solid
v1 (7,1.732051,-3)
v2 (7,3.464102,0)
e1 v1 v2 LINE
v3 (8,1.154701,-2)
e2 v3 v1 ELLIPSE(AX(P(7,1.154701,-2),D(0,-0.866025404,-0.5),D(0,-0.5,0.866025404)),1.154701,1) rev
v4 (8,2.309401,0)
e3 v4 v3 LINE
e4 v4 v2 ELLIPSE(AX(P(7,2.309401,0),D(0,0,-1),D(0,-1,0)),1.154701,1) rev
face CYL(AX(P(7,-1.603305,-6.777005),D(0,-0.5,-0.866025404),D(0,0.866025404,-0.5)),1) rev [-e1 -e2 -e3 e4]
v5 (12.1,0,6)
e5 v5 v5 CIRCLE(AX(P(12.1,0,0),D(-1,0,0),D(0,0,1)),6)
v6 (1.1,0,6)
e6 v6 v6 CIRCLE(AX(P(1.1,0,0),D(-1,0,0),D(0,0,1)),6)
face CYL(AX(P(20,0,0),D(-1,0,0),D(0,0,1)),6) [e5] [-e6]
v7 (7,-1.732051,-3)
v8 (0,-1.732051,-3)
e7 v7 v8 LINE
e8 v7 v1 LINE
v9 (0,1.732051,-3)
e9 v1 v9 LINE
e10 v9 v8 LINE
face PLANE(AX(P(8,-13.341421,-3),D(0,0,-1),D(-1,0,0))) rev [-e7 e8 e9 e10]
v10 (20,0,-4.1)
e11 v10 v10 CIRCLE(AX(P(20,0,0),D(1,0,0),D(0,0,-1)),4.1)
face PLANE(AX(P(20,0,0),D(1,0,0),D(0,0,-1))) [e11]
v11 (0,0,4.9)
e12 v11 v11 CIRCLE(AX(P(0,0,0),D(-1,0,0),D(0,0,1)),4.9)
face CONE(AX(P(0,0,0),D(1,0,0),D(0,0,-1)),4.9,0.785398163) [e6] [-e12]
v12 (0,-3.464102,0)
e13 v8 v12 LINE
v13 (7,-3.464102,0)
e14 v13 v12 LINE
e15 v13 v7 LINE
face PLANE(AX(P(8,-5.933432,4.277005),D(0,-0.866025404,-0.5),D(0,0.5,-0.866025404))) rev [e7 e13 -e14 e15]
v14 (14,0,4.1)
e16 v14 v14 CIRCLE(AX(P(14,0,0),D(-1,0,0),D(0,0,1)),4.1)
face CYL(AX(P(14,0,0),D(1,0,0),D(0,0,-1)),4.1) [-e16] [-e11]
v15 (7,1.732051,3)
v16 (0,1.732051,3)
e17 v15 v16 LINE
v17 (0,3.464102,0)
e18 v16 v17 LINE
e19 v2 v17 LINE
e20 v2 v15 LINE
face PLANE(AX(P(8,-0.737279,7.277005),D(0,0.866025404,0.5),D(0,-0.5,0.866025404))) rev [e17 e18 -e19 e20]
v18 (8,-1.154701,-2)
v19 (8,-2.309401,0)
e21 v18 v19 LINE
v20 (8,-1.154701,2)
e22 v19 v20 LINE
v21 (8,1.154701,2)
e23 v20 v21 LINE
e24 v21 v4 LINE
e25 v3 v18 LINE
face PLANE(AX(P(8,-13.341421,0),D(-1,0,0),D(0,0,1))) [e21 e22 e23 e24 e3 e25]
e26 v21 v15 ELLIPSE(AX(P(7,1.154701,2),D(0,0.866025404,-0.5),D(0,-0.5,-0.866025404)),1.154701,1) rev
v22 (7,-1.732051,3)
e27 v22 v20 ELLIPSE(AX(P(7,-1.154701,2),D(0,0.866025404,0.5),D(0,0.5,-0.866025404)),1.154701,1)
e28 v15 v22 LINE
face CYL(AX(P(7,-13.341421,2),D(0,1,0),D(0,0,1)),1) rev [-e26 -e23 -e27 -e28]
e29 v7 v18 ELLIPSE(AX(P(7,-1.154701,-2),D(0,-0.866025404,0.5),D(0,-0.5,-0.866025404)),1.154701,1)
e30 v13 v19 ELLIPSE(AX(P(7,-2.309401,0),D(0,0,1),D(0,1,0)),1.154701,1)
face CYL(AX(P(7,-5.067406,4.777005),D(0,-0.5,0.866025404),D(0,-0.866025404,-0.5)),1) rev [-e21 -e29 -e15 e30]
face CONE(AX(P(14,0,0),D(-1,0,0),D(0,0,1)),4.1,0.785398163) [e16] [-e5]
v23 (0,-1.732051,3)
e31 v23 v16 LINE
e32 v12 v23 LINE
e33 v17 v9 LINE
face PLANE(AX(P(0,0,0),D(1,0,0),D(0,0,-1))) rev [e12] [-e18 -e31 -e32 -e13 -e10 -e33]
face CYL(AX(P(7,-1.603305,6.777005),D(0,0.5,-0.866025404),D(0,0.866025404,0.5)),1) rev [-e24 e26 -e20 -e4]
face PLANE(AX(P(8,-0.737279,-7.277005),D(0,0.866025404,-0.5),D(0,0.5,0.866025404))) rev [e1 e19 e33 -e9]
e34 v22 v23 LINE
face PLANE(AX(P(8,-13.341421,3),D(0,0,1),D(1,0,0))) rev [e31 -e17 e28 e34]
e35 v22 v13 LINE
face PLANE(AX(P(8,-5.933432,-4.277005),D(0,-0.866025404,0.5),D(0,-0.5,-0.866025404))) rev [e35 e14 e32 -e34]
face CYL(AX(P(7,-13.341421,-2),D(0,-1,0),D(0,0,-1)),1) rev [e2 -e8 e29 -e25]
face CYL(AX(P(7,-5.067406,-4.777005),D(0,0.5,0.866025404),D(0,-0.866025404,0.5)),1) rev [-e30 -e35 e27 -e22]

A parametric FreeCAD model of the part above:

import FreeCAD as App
import Part
import Sketcher

V = App.Vector
Q = App.Units.Quantity


def edges_at(feature, points):
    """Names of the edges that pass closest to the given points."""
    edges = feature.Shape.Edges
    near = lambda p: min(range(len(edges)), key=lambda i: edges[i].distToShape(Part.Vertex(*p))[0])
    return sorted({f"Edge{near(p) + 1}" for p in points})

doc = App.newDocument("Part")
body = doc.addObject("PartDesign::Body", "Body")

# Sketch on YZ plane
sketch1 = body.newObject("Sketcher::SketchObject", "Sketch")
sketch1.AttachmentSupport = (doc.getObject("YZ_Plane"), [""])
sketch1.MapMode = "FlatFace"
sketch1.addGeometry(Part.Circle(V(0, 0, 0), V(0, 0, 1), 6), False)
sketch1.addConstraint([
    Sketcher.Constraint("Coincident", 0, 3, -1, 1),
    Sketcher.Constraint("Diameter", 0, 12.0),
])
pad1 = body.newObject("PartDesign::Pad", "Pad")
pad1.Profile = sketch1
pad1.Length = 20

# Sketch on YZ plane
sketch2 = body.newObject("Sketcher::SketchObject", "Sketch001")
sketch2.AttachmentSupport = (doc.getObject("YZ_Plane"), [""])
sketch2.MapMode = "FlatFace"
sketch2.addGeometry([
    Part.LineSegment(V(-1.7, -3, 0), V(-3.5, 0, 0)),  # 0
    Part.LineSegment(V(-3.5, 0, 0), V(-1.7, 3, 0)),  # 1
    Part.LineSegment(V(-1.7, 3, 0), V(1.7, 3, 0)),  # 2
    Part.LineSegment(V(1.7, 3, 0), V(3.5, 0, 0)),  # 3
    Part.LineSegment(V(3.5, 0, 0), V(1.7, -3, 0)),  # 4
    Part.LineSegment(V(1.7, -3, 0), V(-1.7, -3, 0)),  # 5
], False)
sketch2.addConstraint([
    Sketcher.Constraint("Coincident", 0, 2, 1, 1),
    Sketcher.Constraint("Coincident", 1, 2, 2, 1),
    Sketcher.Constraint("Coincident", 2, 2, 3, 1),
    Sketcher.Constraint("Coincident", 3, 2, 4, 1),
    Sketcher.Constraint("Coincident", 4, 2, 5, 1),
    Sketcher.Constraint("Coincident", 5, 2, 0, 1),
    Sketcher.Constraint("Horizontal", 2),
    Sketcher.Constraint("Horizontal", 5),
    Sketcher.Constraint("Symmetric", 0, 2, 3, 2, -1, 1),
    Sketcher.Constraint("Symmetric", 1, 2, 4, 2, -1, 1),
    Sketcher.Constraint("PointOnObject", 0, 2, -1),
    Sketcher.Constraint("Parallel", 0, 3),
    Sketcher.Constraint("Vertical", 2, 2, 4, 2),
    Sketcher.Constraint("Angle", 0, Q("120 deg")),
    Sketcher.Constraint("DistanceY", -1, 1, 1, 2, 3.0),
    Sketcher.Constraint("DistanceX", 2, 1, 2, 2, 3.464102),
])
pocket1 = body.newObject("PartDesign::Pocket", "Pocket")
pocket1.Profile = sketch2
pocket1.Length = 8
pocket1.Reversed = True

# Sketch on YZ plane
sketch3 = body.newObject("Sketcher::SketchObject", "Sketch002")
sketch3.AttachmentSupport = (doc.getObject("YZ_Plane"), [""])
sketch3.MapMode = "FlatFace"
sketch3.AttachmentOffset = App.Placement(V(0, 0, 14), App.Rotation())
sketch3.addGeometry([
    Part.Circle(V(0, 0, 0), V(0, 0, 1), 6),
    Part.Circle(V(0, 0, 0), V(0, 0, 1), 4.1),
], False)
sketch3.addConstraint([
    Sketcher.Constraint("Coincident", 0, 3, -1, 1),
    Sketcher.Constraint("Coincident", 1, 3, -1, 1),
    Sketcher.Constraint("Diameter", 0, 12.0),
    Sketcher.Constraint("Diameter", 1, 8.2),
])
pocket2 = body.newObject("PartDesign::Pocket", "Pocket001")
pocket2.Profile = sketch3
pocket2.Length = 6
pocket2.Reversed = True

# Sketch on XY plane
sketch4 = body.newObject("Sketcher::SketchObject", "Sketch003")
sketch4.AttachmentSupport = (doc.getObject("XY_Plane"), [""])
sketch4.MapMode = "FlatFace"
sketch4.addGeometry([
    Part.LineSegment(V(14, 4.1, 0), V(14, 6, 0)),
    Part.LineSegment(V(14, 6, 0), V(12.1, 6, 0)),
    Part.LineSegment(V(12.1, 6, 0), V(14, 4.1, 0)),
], False)
sketch4.addConstraint([
    Sketcher.Constraint("Coincident", 0, 2, 1, 1),
    Sketcher.Constraint("Coincident", 1, 2, 2, 1),
    Sketcher.Constraint("Coincident", 2, 2, 0, 1),
    Sketcher.Constraint("Vertical", 0),
    Sketcher.Constraint("Horizontal", 1),
    Sketcher.Constraint("Equal", 1, 0),
    Sketcher.Constraint("DistanceX", 1, 2, 1, 1, 1.9),
    Sketcher.Constraint("DistanceX", -1, 1, 0, 2, 14.0),
    Sketcher.Constraint("DistanceY", -1, 1, 0, 2, 6.0),
])
groove = body.newObject("PartDesign::Groove", "Groove")
groove.Profile = sketch4
groove.ReferenceAxis = (sketch4, ["H_Axis"])
groove.Angle = 360

# Sketch on XY plane
sketch5 = body.newObject("Sketcher::SketchObject", "Sketch004")
sketch5.AttachmentSupport = (doc.getObject("XY_Plane"), [""])
sketch5.MapMode = "FlatFace"
sketch5.addGeometry([
    Part.LineSegment(V(0, 6, 0), V(0, 4.9, 0)),
    Part.LineSegment(V(0, 4.9, 0), V(1.1, 6, 0)),
    Part.LineSegment(V(1.1, 6, 0), V(0, 6, 0)),
], False)
sketch5.addConstraint([
    Sketcher.Constraint("Coincident", 0, 2, 1, 1),
    Sketcher.Constraint("Coincident", 1, 2, 2, 1),
    Sketcher.Constraint("Coincident", 2, 2, 0, 1),
    Sketcher.Constraint("Vertical", 0),
    Sketcher.Constraint("Horizontal", 2),
    Sketcher.Constraint("PointOnObject", 0, 2, -2),
    Sketcher.Constraint("Equal", 2, 0),
    Sketcher.Constraint("DistanceX", 2, 2, 2, 1, 1.1),
    Sketcher.Constraint("DistanceY", -1, 1, 1, 2, 6.0),
])
groove2 = body.newObject("PartDesign::Groove", "Groove001")
groove2.Profile = sketch5
groove2.ReferenceAxis = (sketch5, ["H_Axis"])
groove2.Angle = 360
doc.recompute()

fillet = body.newObject("PartDesign::Fillet", "Fillet")
fillet.Base = (groove2, edges_at(groove2, [
    (8, -2.598, 1.5),
    (8, -2.598, -1.5),
    (8, 0, -3),
    (8, 2.598, -1.5),
    (8, 2.598, 1.5),
    (8, 0, 3),
]))
fillet.Radius = 1

doc.recompute()
